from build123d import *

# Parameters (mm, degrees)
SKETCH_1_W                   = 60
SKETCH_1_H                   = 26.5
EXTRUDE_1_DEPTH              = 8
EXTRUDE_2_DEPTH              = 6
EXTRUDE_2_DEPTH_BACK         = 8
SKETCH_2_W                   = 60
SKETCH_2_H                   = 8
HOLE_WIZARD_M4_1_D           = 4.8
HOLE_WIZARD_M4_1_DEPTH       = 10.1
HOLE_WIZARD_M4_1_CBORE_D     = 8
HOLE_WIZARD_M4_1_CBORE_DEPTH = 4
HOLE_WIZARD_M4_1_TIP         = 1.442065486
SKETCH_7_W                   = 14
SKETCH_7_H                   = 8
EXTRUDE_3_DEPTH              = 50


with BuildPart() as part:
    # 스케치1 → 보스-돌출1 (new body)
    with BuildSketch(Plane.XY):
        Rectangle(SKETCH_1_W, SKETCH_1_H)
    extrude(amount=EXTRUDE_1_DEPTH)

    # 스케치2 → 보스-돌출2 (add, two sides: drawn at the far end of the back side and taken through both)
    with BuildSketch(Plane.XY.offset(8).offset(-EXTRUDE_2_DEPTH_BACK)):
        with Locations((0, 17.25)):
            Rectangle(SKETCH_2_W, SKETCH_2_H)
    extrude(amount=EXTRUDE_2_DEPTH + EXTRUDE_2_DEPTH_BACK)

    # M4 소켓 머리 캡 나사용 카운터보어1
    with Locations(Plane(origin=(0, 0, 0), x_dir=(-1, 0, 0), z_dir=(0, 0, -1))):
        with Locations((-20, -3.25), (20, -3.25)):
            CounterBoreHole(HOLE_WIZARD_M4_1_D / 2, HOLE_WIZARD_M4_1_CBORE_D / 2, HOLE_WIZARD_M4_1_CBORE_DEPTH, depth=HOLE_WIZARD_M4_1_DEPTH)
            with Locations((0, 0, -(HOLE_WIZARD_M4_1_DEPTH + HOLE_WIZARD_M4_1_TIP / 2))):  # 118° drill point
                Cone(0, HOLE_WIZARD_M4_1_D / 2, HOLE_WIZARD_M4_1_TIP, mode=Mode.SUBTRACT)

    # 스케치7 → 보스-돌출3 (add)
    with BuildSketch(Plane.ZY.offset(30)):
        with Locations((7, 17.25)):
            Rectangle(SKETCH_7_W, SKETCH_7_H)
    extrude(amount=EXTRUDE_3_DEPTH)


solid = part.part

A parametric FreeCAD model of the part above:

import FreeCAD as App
import Part
import Sketcher
from FreeCAD import Vector
Q = App.Units.Quantity

doc = App.newDocument("Part")
params = doc.addObject("Spreadsheet::Sheet", "Params")
for row, (alias, value) in enumerate([
    ("sketch1_width", "60 mm"),
    ("sketch1_height", "26.5 mm"),
    ("pad1_length", "8 mm"),
    ("sketch2_width", "60 mm"),
    ("sketch2_height", "8 mm"),
    ("pad2_length", "6 mm"),
    ("pad2_length2", "8 mm"),
    ("sketch3_diameter", "4.8 mm"),
    ("hole_diameter", "4.8 mm"),
    ("hole_depth", "10.1 mm"),
    ("hole_cbore_diameter", "8 mm"),
    ("hole_cbore_depth", "4 mm"),
    ("sketch4_width", "8 mm"),
    ("sketch4_height", "14 mm"),
    ("pad3_length", "50 mm"),
], start=1):
    params.set(f"A{row}", alias)
    params.set(f"B{row}", "=" + value)
    params.setAlias(f"B{row}", alias)

body = doc.addObject("PartDesign::Body", "Body")

# Sketch on XY plane
sketch1 = doc.addObject("Sketcher::SketchObject", "Sketch")
body.addObject(sketch1)
sketch1.AttachmentSupport = (doc.XY_Plane, [""])
sketch1.MapMode = "FlatFace"
sketch1.addGeometry(Part.LineSegment(Vector(-30, 13, 0), Vector(-30, -13, 0)), False)
sketch1.addGeometry(Part.LineSegment(Vector(-30, -13, 0), Vector(30, -13, 0)), False)
sketch1.addGeometry(Part.LineSegment(Vector(30, -13, 0), Vector(30, 13, 0)), False)
sketch1.addGeometry(Part.LineSegment(Vector(30, 13, 0), Vector(-30, 13, 0)), False)
sketch1.addConstraint(Sketcher.Constraint("Coincident", 0, 2, 1, 1))
sketch1.addConstraint(Sketcher.Constraint("Coincident", 1, 2, 2, 1))
sketch1.addConstraint(Sketcher.Constraint("Coincident", 2, 2, 3, 1))
sketch1.addConstraint(Sketcher.Constraint("Coincident", 3, 2, 0, 1))
sketch1.addConstraint(Sketcher.Constraint("Vertical", 0))
sketch1.addConstraint(Sketcher.Constraint("Horizontal", 1))
sketch1.addConstraint(Sketcher.Constraint("Vertical", 2))
sketch1.addConstraint(Sketcher.Constraint("Horizontal", 3))
sketch1.addConstraint(Sketcher.Constraint("Symmetric", 0, 2, 2, 2, -1, 1))
sketch1.addConstraint(Sketcher.Constraint("DistanceX", 1, 1, 1, 2, Q("60 mm")))
sketch1.addConstraint(Sketcher.Constraint("DistanceY", 0, 2, 0, 1, Q("26.5 mm")))
sketch1.setExpression("Constraints[9]", "Params.sketch1_width")
sketch1.setExpression("Constraints[10]", "Params.sketch1_height")
pad1 = doc.addObject("PartDesign::Pad", "Pad")
body.addObject(pad1)
pad1.Profile = sketch1
pad1.setExpression("Length", "Params.pad1_length")

# Sketch on XY plane
sketch2 = doc.addObject("Sketcher::SketchObject", "Sketch001")
body.addObject(sketch2)
sketch2.AttachmentSupport = (doc.XY_Plane, [""])
sketch2.MapMode = "FlatFace"
sketch2.AttachmentOffset = App.Placement(Vector(0, 0, 8), App.Rotation())
sketch2.addGeometry(Part.LineSegment(Vector(-30, 21, 0), Vector(-30, 13, 0)), False)
sketch2.addGeometry(Part.LineSegment(Vector(-30, 13, 0), Vector(30, 13, 0)), False)
sketch2.addGeometry(Part.LineSegment(Vector(30, 13, 0), Vector(30, 21, 0)), False)
sketch2.addGeometry(Part.LineSegment(Vector(30, 21, 0), Vector(-30, 21, 0)), False)
sketch2.addConstraint(Sketcher.Constraint("Coincident", 0, 2, 1, 1))
sketch2.addConstraint(Sketcher.Constraint("Coincident", 1, 2, 2, 1))
sketch2.addConstraint(Sketcher.Constraint("Coincident", 2, 2, 3, 1))
sketch2.addConstraint(Sketcher.Constraint("Coincident", 3, 2, 0, 1))
sketch2.addConstraint(Sketcher.Constraint("Vertical", 0))
sketch2.addConstraint(Sketcher.Constraint("Horizontal", 1))
sketch2.addConstraint(Sketcher.Constraint("Vertical", 2))
sketch2.addConstraint(Sketcher.Constraint("Horizontal", 3))
sketch2.addConstraint(Sketcher.Constraint("DistanceX", 1, 1, 1, 2, Q("60 mm")))
sketch2.addConstraint(Sketcher.Constraint("DistanceY", 0, 2, 0, 1, Q("8 mm")))
sketch2.addConstraint(Sketcher.Constraint("DistanceX", 0, 2, -1, 1, Q("30 mm")))
sketch2.addConstraint(Sketcher.Constraint("DistanceY", -1, 1, 0, 2, Q("13.25 mm")))
sketch2.setExpression("Constraints[8]", "Params.sketch2_width")
sketch2.setExpression("Constraints[9]", "Params.sketch2_height")
pad2 = doc.addObject("PartDesign::Pad", "Pad001")
body.addObject(pad2)
pad2.Profile = sketch2
pad2.Type = "TwoLengths"
pad2.setExpression("Length", "Params.pad2_length")
pad2.setExpression("Length2", "Params.pad2_length2")

# Sketch on XY plane
sketch3 = doc.addObject("Sketcher::SketchObject", "Sketch002")
body.addObject(sketch3)
sketch3.AttachmentSupport = (doc.XY_Plane, [""])
sketch3.MapMode = "FlatFace"
sketch3.addGeometry(Part.Circle(Vector(20, -3.2, 0), Vector(0, 0, 1), 2.4), False)
sketch3.addGeometry(Part.Circle(Vector(-20, -3.2, 0), Vector(0, 0, 1), 2.4), False)
sketch3.addConstraint(Sketcher.Constraint("Equal", 0, 1))
sketch3.addConstraint(Sketcher.Constraint("Symmetric", 0, 3, 1, 3, -2))
sketch3.addConstraint(Sketcher.Constraint("Diameter", 0, Q("4.8 mm")))
sketch3.addConstraint(Sketcher.Constraint("DistanceX", -1, 1, 0, 3, Q("20 mm")))
sketch3.addConstraint(Sketcher.Constraint("DistanceY", 0, 3, -1, 1, Q("3.25 mm")))
sketch3.setExpression("Constraints[2]", "Params.sketch3_diameter")
doc.recompute()
hole = doc.addObject("PartDesign::Hole", "Hole")
body.addObject(hole)
hole.Profile = sketch3
hole.ThreadType = "None"
hole.setExpression("Diameter", "Params.hole_diameter")
hole.DepthType = "Dimension"
hole.setExpression("Depth", "Params.hole_depth")
hole.DrillPoint = "Angled"
hole.DrillPointAngle = 118
hole.HoleCutType = "Counterbore"
hole.setExpression("HoleCutDiameter", "Params.hole_cbore_diameter")
hole.setExpression("HoleCutDepth", "Params.hole_cbore_depth")
hole.Reversed = True

# Sketch on YZ plane
sketch4 = doc.addObject("Sketcher::SketchObject", "Sketch003")
body.addObject(sketch4)
sketch4.AttachmentSupport = (doc.YZ_Plane, [""])
sketch4.MapMode = "FlatFace"
sketch4.AttachmentOffset = App.Placement(Vector(0, 0, -30), App.Rotation())
sketch4.addGeometry(Part.LineSegment(Vector(21, 0, 0), Vector(13, 0, 0)), False)
sketch4.addGeometry(Part.LineSegment(Vector(13, 0, 0), Vector(13, 14, 0)), False)
sketch4.addGeometry(Part.LineSegment(Vector(13, 14, 0), Vector(21, 14, 0)), False)
sketch4.addGeometry(Part.LineSegment(Vector(21, 14, 0), Vector(21, 0, 0)), False)
sketch4.addConstraint(Sketcher.Constraint("Coincident", 0, 2, 1, 1))
sketch4.addConstraint(Sketcher.Constraint("Coincident", 1, 2, 2, 1))
sketch4.addConstraint(Sketcher.Constraint("Coincident", 2, 2, 3, 1))
sketch4.addConstraint(Sketcher.Constraint("Coincident", 3, 2, 0, 1))
sketch4.addConstraint(Sketcher.Constraint("Horizontal", 0))
sketch4.addConstraint(Sketcher.Constraint("Vertical", 1))
sketch4.addConstraint(Sketcher.Constraint("Horizontal", 2))
sketch4.addConstraint(Sketcher.Constraint("Vertical", 3))
sketch4.addConstraint(Sketcher.Constraint("PointOnObject", 0, 2, -1))
sketch4.addConstraint(Sketcher.Constraint("DistanceX", 0, 2, 0, 1, Q("8 mm")))
sketch4.addConstraint(Sketcher.Constraint("DistanceY", 1, 1, 1, 2, Q("14 mm")))
sketch4.addConstraint(Sketcher.Constraint("DistanceX", -1, 1, 0, 2, Q("13.25 mm")))
sketch4.setExpression("Constraints[9]", "Params.sketch4_width")
sketch4.setExpression("Constraints[10]", "Params.sketch4_height")
pad3 = doc.addObject("PartDesign::Pad", "Pad002")
body.addObject(pad3)
pad3.Profile = sketch4
pad3.setExpression("Length", "Params.pad3_length")
pad3.Reversed = True

doc.recompute()
